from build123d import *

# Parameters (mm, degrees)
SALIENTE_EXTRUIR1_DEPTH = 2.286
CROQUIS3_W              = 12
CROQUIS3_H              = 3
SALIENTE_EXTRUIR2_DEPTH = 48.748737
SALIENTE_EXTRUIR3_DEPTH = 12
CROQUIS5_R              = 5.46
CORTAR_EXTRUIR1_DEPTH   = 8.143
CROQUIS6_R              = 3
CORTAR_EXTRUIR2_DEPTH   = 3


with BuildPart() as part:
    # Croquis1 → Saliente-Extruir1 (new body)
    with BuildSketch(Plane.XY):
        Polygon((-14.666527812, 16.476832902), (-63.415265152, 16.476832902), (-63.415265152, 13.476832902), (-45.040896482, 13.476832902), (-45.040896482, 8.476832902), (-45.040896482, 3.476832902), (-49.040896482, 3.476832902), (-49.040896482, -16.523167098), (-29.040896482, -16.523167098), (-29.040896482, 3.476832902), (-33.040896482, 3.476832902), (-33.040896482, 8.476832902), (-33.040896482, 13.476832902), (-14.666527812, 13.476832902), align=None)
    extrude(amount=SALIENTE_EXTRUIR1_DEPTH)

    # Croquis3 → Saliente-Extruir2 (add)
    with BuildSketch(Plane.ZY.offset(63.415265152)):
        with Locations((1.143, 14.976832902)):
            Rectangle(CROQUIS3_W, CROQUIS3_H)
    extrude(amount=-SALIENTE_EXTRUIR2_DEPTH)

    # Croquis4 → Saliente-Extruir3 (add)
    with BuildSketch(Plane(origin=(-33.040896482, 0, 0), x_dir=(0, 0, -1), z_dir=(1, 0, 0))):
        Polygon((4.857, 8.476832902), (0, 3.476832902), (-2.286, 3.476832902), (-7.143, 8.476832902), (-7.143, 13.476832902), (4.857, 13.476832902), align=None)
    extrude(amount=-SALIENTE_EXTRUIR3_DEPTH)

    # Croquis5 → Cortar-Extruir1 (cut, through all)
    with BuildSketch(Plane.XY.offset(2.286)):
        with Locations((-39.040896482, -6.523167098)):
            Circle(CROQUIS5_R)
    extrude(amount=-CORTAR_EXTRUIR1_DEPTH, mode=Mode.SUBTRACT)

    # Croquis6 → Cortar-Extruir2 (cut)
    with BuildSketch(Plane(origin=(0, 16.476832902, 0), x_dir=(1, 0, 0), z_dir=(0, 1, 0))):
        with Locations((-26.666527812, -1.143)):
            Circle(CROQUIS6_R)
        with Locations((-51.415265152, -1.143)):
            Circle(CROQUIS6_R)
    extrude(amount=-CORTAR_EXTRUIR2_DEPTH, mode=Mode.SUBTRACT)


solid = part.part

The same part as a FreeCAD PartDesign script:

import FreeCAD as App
import Part
import Sketcher

V = App.Vector


def add_polygon(sketch, points):
    """Adds a closed chain of lines whose ends are joined by coincident constraints."""
    first, n = sketch.GeometryCount, len(points)
    for a, b in zip(points, points[1:] + points[:1]):
        sketch.addGeometry(Part.LineSegment(App.Vector(*a, 0), App.Vector(*b, 0)), False)
    for i in range(n):
        sketch.addConstraint(Sketcher.Constraint("Coincident", first + i, 2, first + (i + 1) % n, 1))

doc = App.newDocument("Part")
body = doc.addObject("PartDesign::Body", "Body")

# Sketch on XY plane
sketch1 = body.newObject("Sketcher::SketchObject", "Sketch")
sketch1.AttachmentSupport = (doc.getObject("XY_Plane"), [""])
sketch1.MapMode = "FlatFace"
add_polygon(sketch1, [(-14.7, 16.5), (-63.4, 16.5), (-63.4, 13.5), (-45, 13.5), (-45, 3.5), (-49, 3.5), (-49, -16.5), (-29, -16.5), (-29, 3.5), (-33, 3.5), (-33, 13.5), (-14.7, 13.5)])  # lines 0-11
sketch1.addConstraint([
    Sketcher.Constraint("Horizontal", 0),
    Sketcher.Constraint("Vertical", 1),
    Sketcher.Constraint("Horizontal", 2),
    Sketcher.Constraint("Vertical", 3),
    Sketcher.Constraint("Horizontal", 4),
    Sketcher.Constraint("Vertical", 5),
    Sketcher.Constraint("Horizontal", 6),
    Sketcher.Constraint("Vertical", 7),
    Sketcher.Constraint("Horizontal", 8),
    Sketcher.Constraint("Vertical", 9),
    Sketcher.Constraint("Horizontal", 10),
    Sketcher.Constraint("Vertical", 11),
    Sketcher.Constraint("Horizontal", 4, 2, 7, 2),
    Sketcher.Constraint("Horizontal", 2, 2, 9, 2),
    Sketcher.Constraint("Equal", 4, 8),
    Sketcher.Constraint("Equal", 2, 10),
    Sketcher.Constraint("Equal", 6, 5),
    Sketcher.Constraint("DistanceX", 4, 2, 4, 1, 4.0),
    Sketcher.Constraint("DistanceX", 6, 1, 6, 2, 20.0),
    Sketcher.Constraint("DistanceY", 1, 2, 1, 1, 3.0),
    Sketcher.Constraint("DistanceY", 3, 2, 3, 1, 10.0),
    Sketcher.Constraint("DistanceX", 2, 1, 2, 2, 18.374369),
    Sketcher.Constraint("DistanceX", 0, 2, -1, 1, 63.415265),
    Sketcher.Constraint("DistanceY", -1, 1, 0, 2, 16.476833),
])
pad1 = body.newObject("PartDesign::Pad", "Pad")
pad1.Profile = sketch1
pad1.Length = 2.286

# Sketch on YZ plane
sketch2 = body.newObject("Sketcher::SketchObject", "Sketch001")
sketch2.AttachmentSupport = (doc.getObject("YZ_Plane"), [""])
sketch2.MapMode = "FlatFace"
sketch2.AttachmentOffset = App.Placement(V(0, 0, -63.415265), App.Rotation())
add_polygon(sketch2, [(16.5, -4.9), (13.5, -4.9), (13.5, 7.1), (16.5, 7.1)])  # lines 0-3
sketch2.addConstraint([
    Sketcher.Constraint("Horizontal", 0),
    Sketcher.Constraint("Vertical", 1),
    Sketcher.Constraint("Horizontal", 2),
    Sketcher.Constraint("Vertical", 3),
    Sketcher.Constraint("DistanceX", 0, 2, 0, 1, 3.0),
    Sketcher.Constraint("DistanceY", 1, 1, 1, 2, 12.0),
    Sketcher.Constraint("DistanceY", 0, 2, -1, 1, 4.857),
    Sketcher.Constraint("DistanceX", -1, 1, 0, 2, 13.476833),
])
pad2 = body.newObject("PartDesign::Pad", "Pad001")
pad2.Profile = sketch2
pad2.Length = 48.748737

# Sketch on YZ plane
sketch3 = body.newObject("Sketcher::SketchObject", "Sketch002")
sketch3.AttachmentSupport = (doc.getObject("YZ_Plane"), [""])
sketch3.MapMode = "FlatFace"
sketch3.AttachmentOffset = App.Placement(V(0, 0, -33.040896), App.Rotation())
add_polygon(sketch3, [(3.5, 0), (8.5, -4.9), (13.5, -4.9), (13.5, 7.1), (8.5, 7.1), (3.5, 2.3)])  # lines 0-5
sketch3.addConstraint([
    Sketcher.Constraint("Horizontal", 1),
    Sketcher.Constraint("Vertical", 2),
    Sketcher.Constraint("Horizontal", 3),
    Sketcher.Constraint("Vertical", 5),
    Sketcher.Constraint("PointOnObject", 5, 2, -1),
    Sketcher.Constraint("Vertical", 0, 2, 3, 2),
    Sketcher.Constraint("Equal", 0, 4),
    Sketcher.Constraint("DistanceX", 1, 1, 1, 2, 5.0),
    Sketcher.Constraint("DistanceY", 2, 1, 2, 2, 12.0),
    Sketcher.Constraint("DistanceX", 4, 2, 3, 2, 5.0),
    Sketcher.Constraint("DistanceY", 5, 2, 5, 1, 2.286),
    Sketcher.Constraint("DistanceX", -1, 1, 0, 2, 8.476833),
])
pad3 = body.newObject("PartDesign::Pad", "Pad002")
pad3.Profile = sketch3
pad3.Length = 12
pad3.Reversed = True

# Sketch on XY plane
sketch4 = body.newObject("Sketcher::SketchObject", "Sketch003")
sketch4.AttachmentSupport = (doc.getObject("XY_Plane"), [""])
sketch4.MapMode = "FlatFace"
sketch4.AttachmentOffset = App.Placement(V(0, 0, 2.286), App.Rotation())
sketch4.addGeometry(Part.Circle(V(-39, -7, 0), V(0, 0, 1), 5), False)
sketch4.addConstraint([
    Sketcher.Constraint("Diameter", 0, 10.92),
    Sketcher.Constraint("DistanceX", 0, 3, -1, 1, 39.040896),
    Sketcher.Constraint("DistanceY", 0, 3, -1, 1, 6.523167),
])
pocket1 = body.newObject("PartDesign::Pocket", "Pocket")
pocket1.Profile = sketch4
pocket1.Type = "ThroughAll"

# Sketch on XZ plane
sketch5 = body.newObject("Sketcher::SketchObject", "Sketch004")
sketch5.AttachmentSupport = (doc.getObject("XZ_Plane"), [""])
sketch5.MapMode = "FlatFace"
sketch5.AttachmentOffset = App.Placement(V(0, 0, -16.476833), App.Rotation())
sketch5.addGeometry([
    Part.Circle(V(-26.7, 1.1, 0), V(0, 0, 1), 3),
    Part.Circle(V(-51.4, 1.1, 0), V(0, 0, 1), 3),
], False)
sketch5.addConstraint([
    Sketcher.Constraint("Equal", 0, 1),
    Sketcher.Constraint("Horizontal", 0, 3, 1, 3),
    Sketcher.Constraint("Diameter", 0, 6.0),
    Sketcher.Constraint("DistanceY", -1, 1, 0, 3, 1.143),
    Sketcher.Constraint("DistanceX", 0, 3, -1, 1, 26.666528),
    Sketcher.Constraint("DistanceX", 1, 3, -1, 1, 51.415265),
])
pocket2 = body.newObject("PartDesign::Pocket", "Pocket001")
pocket2.Profile = sketch5
pocket2.Length = 3
pocket2.Reversed = True

doc.recompute()
